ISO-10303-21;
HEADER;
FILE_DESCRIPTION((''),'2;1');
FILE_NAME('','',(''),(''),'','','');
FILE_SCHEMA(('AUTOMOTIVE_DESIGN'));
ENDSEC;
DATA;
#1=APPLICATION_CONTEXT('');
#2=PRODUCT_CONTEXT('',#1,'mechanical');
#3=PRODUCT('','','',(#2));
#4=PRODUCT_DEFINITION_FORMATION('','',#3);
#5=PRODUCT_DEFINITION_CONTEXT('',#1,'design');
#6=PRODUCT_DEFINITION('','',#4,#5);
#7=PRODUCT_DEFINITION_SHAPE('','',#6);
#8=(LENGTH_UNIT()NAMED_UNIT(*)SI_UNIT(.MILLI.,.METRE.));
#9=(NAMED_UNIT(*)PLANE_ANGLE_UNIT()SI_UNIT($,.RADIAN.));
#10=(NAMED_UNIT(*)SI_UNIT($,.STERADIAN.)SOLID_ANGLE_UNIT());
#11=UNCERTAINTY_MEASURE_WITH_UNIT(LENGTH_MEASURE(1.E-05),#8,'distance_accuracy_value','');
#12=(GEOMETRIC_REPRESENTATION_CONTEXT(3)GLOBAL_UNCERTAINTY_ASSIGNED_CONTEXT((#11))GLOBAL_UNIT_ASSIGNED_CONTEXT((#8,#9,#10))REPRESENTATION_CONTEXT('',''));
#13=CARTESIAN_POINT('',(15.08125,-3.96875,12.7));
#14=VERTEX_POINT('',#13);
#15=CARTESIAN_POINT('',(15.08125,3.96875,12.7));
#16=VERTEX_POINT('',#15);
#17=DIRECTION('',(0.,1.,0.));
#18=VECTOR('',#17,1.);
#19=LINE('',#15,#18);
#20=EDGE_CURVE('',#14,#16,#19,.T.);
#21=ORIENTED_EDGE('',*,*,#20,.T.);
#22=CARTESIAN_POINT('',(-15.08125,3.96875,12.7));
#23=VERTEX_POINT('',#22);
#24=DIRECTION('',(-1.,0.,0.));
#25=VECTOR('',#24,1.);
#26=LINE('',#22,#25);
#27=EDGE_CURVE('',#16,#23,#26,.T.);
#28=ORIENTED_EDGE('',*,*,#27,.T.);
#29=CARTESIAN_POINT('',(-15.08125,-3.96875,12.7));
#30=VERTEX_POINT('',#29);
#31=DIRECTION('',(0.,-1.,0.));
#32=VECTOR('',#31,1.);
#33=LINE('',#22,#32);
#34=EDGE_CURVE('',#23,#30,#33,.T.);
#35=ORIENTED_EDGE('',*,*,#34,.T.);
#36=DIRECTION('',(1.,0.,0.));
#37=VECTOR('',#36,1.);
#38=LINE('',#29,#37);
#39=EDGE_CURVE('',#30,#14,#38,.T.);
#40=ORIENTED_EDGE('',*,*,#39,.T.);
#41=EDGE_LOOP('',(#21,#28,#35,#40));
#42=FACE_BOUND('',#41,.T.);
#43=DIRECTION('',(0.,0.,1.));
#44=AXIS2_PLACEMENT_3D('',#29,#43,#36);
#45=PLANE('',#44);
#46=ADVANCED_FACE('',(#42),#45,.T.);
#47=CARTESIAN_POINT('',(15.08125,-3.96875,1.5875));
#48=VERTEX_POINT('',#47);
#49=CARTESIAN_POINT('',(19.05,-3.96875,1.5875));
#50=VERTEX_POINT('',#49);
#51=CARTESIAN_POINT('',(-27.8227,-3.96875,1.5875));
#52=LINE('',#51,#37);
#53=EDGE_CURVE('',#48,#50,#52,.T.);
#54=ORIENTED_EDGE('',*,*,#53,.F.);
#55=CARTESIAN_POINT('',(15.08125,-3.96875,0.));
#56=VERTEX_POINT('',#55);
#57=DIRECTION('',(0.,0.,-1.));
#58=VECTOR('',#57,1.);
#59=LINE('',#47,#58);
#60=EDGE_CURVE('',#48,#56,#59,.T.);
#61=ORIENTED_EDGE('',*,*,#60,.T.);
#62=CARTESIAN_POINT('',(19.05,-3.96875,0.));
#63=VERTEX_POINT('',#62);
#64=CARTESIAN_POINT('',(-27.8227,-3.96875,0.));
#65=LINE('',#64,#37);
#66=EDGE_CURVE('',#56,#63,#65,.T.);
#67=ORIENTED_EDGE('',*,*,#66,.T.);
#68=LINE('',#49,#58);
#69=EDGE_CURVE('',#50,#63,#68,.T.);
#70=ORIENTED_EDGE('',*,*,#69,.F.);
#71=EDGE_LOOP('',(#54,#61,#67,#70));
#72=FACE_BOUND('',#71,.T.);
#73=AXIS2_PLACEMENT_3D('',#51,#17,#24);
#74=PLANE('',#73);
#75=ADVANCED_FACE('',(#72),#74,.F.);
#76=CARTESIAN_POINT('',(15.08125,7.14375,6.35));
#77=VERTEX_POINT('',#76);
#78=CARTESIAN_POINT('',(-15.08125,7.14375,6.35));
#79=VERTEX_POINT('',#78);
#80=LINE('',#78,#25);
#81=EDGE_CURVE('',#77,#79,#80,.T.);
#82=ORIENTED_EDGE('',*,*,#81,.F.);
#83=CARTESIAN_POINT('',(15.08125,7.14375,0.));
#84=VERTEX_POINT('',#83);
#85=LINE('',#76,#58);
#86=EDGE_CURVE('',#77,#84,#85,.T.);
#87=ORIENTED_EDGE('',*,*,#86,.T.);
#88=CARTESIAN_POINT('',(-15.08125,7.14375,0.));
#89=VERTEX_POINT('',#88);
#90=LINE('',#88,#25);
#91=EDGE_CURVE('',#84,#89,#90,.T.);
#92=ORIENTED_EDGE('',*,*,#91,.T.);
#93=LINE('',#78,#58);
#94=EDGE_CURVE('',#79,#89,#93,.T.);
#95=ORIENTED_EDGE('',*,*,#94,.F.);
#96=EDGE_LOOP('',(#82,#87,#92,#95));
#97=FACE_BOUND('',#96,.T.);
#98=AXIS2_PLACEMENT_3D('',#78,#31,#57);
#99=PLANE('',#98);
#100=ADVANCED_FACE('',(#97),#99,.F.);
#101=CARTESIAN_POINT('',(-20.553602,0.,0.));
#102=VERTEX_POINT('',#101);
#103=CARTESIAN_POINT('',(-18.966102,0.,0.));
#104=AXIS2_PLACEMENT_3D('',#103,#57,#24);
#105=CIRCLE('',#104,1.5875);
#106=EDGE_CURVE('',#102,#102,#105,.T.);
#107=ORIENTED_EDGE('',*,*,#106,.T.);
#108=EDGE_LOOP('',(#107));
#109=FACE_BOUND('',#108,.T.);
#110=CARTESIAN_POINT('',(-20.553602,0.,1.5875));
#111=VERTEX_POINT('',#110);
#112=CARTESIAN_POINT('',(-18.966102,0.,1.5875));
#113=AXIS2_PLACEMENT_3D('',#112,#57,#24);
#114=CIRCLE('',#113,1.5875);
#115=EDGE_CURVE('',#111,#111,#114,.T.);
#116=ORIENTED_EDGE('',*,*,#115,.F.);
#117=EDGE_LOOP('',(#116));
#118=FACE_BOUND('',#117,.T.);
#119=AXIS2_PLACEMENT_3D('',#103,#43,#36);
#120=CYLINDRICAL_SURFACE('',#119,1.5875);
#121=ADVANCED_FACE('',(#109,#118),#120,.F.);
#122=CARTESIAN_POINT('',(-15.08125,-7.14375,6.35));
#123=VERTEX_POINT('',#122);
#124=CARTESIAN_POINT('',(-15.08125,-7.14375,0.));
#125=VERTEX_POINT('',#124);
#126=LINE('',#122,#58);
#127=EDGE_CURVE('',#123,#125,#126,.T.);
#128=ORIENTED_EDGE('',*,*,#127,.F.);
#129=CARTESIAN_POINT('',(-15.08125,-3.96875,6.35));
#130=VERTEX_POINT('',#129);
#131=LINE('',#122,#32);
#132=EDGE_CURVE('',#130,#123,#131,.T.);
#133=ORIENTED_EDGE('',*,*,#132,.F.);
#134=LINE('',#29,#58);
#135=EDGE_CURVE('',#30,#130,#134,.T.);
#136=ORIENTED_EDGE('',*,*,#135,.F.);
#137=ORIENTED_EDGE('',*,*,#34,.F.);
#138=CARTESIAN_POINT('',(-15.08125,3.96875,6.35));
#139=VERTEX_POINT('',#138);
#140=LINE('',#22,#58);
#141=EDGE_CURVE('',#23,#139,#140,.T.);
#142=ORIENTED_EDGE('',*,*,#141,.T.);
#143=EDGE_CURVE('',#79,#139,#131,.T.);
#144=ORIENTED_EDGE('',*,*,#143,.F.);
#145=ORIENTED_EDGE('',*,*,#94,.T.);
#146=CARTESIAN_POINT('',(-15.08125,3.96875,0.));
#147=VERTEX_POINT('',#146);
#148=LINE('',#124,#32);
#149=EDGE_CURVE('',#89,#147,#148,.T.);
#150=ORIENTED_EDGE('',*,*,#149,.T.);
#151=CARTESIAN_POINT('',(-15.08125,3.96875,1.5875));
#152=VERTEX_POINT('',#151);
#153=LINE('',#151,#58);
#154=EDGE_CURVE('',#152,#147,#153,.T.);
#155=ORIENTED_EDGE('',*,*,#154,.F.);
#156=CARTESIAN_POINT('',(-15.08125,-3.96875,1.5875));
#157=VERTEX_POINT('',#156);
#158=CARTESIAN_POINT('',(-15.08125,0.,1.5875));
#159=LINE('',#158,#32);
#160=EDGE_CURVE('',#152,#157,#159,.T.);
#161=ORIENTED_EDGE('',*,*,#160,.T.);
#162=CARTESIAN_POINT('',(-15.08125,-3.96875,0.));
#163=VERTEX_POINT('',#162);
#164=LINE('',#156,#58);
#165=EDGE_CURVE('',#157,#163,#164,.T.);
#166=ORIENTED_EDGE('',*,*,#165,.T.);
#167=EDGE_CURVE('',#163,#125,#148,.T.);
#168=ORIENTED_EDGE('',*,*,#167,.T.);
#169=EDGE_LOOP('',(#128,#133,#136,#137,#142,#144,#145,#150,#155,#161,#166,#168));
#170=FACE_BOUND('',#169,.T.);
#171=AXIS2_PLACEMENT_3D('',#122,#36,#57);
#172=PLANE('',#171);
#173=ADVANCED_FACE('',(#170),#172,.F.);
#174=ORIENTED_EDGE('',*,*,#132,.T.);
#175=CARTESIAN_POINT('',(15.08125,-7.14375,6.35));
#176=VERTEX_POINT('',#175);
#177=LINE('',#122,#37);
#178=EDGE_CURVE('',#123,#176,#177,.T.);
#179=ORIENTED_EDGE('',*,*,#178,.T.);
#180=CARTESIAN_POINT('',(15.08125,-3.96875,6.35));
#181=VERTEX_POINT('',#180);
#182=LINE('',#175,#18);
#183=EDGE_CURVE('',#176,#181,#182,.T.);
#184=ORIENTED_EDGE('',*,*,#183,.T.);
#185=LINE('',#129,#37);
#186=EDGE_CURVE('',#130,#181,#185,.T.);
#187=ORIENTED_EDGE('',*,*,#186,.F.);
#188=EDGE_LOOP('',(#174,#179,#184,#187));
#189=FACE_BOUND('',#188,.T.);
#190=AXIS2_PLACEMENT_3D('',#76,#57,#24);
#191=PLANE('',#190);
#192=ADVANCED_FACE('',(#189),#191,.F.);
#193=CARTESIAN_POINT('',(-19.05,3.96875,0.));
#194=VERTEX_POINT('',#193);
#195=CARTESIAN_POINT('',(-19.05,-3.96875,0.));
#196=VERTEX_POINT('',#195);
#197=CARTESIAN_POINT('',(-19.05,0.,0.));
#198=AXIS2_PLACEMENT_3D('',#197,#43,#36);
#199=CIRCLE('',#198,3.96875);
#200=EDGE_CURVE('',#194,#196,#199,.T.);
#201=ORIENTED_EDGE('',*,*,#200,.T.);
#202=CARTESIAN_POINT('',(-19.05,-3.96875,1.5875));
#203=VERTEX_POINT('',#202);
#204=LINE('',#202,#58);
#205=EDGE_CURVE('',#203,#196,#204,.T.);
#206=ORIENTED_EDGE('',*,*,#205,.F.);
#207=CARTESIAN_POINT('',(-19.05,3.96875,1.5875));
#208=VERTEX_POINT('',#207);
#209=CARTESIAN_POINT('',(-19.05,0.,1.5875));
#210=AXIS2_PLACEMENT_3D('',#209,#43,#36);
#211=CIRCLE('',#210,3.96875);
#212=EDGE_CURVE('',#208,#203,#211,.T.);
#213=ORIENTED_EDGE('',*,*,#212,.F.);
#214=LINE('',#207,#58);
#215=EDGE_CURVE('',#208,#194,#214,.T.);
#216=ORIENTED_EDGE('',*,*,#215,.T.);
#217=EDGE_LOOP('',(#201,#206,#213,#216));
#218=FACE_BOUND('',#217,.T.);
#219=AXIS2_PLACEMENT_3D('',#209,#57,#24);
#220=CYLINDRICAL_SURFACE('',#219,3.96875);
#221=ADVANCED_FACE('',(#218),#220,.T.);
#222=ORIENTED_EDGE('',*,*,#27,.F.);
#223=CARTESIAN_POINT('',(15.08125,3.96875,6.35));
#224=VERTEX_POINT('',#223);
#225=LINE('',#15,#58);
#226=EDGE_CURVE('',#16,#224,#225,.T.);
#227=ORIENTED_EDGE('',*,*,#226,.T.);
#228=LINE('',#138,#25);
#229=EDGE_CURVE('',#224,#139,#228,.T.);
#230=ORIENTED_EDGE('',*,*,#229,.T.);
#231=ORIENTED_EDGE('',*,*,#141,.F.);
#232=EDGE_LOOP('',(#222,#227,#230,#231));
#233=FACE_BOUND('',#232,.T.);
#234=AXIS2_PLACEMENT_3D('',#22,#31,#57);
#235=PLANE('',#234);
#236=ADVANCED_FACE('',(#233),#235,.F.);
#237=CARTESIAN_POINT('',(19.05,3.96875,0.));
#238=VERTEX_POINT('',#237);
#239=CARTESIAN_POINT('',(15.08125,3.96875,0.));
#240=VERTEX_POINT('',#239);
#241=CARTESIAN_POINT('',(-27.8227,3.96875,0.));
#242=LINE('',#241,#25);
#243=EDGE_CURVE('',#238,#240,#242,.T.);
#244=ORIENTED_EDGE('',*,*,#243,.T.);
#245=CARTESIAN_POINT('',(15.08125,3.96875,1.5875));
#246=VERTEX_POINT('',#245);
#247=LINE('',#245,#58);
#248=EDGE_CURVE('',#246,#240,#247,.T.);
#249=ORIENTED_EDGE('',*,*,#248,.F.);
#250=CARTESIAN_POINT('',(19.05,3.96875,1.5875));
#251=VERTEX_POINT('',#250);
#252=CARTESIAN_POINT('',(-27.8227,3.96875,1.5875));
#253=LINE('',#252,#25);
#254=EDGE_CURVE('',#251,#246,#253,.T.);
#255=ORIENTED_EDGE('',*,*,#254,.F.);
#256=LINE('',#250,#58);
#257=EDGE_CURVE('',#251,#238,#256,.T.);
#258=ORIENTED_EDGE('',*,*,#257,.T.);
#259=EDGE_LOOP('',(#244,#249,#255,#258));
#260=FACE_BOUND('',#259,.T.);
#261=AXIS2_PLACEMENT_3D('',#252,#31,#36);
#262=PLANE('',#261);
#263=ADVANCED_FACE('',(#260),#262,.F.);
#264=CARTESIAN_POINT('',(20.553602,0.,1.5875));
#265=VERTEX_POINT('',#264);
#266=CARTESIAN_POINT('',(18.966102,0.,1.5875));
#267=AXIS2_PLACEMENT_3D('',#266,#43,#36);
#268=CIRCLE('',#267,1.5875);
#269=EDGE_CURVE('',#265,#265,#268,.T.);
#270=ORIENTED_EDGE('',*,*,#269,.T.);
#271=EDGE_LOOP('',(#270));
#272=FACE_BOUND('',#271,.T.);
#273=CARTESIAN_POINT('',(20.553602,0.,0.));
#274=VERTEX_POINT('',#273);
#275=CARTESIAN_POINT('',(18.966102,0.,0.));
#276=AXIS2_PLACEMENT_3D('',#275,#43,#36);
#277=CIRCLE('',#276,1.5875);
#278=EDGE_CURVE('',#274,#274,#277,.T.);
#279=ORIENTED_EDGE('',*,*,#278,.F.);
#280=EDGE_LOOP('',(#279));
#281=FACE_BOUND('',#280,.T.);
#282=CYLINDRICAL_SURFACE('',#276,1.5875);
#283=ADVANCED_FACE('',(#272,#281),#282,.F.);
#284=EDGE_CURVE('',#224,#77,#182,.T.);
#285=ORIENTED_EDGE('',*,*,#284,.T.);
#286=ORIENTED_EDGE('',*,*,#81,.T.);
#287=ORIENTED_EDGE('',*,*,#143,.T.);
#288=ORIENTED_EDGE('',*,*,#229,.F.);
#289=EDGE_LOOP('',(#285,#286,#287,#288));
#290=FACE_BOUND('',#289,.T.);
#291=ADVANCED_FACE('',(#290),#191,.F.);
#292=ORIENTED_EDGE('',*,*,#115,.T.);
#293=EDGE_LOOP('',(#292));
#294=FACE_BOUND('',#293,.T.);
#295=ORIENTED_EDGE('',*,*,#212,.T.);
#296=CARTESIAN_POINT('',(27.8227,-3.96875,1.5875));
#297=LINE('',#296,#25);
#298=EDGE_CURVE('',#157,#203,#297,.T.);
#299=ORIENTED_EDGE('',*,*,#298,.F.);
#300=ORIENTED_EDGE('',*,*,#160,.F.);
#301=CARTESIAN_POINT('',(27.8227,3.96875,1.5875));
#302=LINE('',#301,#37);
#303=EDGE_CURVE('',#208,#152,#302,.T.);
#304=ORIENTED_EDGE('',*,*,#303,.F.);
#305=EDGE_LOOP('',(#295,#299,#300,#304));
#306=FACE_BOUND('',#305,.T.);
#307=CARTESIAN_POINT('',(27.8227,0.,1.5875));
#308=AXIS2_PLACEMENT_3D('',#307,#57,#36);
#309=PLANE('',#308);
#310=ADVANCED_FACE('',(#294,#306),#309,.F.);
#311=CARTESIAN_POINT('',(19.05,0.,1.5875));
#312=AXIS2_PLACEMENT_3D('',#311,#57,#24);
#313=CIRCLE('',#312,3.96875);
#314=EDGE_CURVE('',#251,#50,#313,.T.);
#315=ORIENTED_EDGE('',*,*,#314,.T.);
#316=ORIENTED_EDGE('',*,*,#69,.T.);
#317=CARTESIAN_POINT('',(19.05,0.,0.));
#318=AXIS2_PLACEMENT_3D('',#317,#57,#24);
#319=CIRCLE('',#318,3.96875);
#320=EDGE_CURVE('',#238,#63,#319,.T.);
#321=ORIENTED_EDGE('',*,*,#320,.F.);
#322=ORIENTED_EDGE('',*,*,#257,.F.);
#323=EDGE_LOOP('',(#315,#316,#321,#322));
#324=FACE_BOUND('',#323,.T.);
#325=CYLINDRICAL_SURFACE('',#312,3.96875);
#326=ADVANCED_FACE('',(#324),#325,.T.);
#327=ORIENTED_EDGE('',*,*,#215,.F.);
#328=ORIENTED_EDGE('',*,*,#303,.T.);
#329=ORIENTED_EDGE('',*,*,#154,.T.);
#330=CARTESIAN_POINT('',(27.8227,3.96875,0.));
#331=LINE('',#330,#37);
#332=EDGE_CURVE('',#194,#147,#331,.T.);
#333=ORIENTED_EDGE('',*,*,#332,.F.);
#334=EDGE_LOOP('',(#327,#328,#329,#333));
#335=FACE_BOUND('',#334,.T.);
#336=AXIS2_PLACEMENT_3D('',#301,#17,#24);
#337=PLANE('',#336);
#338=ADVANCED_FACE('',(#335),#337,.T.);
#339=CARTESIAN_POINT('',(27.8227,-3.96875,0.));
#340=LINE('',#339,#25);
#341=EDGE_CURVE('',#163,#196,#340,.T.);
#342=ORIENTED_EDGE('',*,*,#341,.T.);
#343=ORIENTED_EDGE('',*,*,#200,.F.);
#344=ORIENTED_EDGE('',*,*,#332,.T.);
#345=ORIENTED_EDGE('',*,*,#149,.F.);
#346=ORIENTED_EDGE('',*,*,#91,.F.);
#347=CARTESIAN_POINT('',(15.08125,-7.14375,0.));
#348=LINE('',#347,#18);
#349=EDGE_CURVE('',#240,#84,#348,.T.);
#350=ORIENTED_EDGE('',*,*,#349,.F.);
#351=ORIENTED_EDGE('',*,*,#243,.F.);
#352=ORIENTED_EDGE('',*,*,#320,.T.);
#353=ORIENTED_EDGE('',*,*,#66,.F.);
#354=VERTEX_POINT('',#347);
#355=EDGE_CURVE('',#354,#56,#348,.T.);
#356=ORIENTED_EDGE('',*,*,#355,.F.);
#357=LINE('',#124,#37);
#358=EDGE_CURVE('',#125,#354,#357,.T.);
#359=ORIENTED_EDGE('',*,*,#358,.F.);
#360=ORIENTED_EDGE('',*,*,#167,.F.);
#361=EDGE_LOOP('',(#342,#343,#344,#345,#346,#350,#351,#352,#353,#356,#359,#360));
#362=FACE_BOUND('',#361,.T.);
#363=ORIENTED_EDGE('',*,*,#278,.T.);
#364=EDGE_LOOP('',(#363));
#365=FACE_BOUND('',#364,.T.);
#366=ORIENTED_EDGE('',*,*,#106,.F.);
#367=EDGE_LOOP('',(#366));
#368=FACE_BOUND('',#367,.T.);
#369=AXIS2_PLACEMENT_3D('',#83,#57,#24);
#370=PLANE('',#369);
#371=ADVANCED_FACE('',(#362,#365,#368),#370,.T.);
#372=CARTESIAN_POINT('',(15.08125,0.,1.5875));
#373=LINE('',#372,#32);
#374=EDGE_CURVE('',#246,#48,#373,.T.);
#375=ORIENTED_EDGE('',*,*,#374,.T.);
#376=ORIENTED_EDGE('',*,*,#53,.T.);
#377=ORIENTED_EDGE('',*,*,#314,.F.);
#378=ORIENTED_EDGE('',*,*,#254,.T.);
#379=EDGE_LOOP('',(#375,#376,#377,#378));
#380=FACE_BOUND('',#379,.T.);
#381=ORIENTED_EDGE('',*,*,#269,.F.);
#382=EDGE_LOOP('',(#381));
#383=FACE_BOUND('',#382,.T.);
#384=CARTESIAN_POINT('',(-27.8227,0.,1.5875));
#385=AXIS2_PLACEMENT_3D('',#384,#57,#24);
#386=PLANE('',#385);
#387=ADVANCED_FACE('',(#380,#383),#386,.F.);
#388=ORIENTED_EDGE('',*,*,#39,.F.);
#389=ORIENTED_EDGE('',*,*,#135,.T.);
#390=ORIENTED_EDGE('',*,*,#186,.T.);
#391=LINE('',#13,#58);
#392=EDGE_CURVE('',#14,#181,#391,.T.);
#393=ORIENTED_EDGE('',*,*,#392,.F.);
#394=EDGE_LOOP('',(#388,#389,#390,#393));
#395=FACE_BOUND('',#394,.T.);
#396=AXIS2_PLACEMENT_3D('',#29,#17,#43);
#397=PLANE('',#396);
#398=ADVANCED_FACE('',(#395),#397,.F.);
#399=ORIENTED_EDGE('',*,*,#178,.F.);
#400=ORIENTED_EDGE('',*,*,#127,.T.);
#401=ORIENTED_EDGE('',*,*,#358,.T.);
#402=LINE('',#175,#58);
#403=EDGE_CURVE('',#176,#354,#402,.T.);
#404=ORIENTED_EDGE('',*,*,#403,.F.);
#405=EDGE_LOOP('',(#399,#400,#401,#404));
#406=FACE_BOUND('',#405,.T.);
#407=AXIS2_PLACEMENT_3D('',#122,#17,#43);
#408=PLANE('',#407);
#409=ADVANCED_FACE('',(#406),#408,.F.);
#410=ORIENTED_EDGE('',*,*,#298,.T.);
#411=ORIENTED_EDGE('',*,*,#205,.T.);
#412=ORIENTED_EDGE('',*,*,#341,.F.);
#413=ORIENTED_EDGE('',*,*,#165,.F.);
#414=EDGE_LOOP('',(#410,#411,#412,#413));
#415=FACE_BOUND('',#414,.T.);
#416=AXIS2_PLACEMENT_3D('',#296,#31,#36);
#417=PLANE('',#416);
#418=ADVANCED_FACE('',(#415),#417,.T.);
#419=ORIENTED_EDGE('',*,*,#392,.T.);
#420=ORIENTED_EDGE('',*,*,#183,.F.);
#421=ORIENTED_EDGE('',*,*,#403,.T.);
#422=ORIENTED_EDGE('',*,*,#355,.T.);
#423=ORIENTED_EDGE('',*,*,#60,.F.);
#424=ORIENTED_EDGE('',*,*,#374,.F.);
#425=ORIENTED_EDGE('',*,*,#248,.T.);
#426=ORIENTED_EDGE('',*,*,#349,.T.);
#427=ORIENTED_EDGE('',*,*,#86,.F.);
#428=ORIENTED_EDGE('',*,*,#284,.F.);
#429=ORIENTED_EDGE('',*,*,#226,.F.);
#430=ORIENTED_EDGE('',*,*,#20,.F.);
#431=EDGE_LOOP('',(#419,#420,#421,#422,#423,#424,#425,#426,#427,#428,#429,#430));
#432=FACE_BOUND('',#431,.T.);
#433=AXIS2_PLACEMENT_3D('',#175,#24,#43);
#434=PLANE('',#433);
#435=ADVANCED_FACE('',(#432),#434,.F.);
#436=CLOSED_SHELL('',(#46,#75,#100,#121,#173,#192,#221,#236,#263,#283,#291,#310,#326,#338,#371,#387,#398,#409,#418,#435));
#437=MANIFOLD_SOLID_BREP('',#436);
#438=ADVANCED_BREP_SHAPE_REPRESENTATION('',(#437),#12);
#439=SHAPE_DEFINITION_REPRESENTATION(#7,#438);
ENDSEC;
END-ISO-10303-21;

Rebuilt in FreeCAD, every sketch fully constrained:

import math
import FreeCAD as App
import Part
import Sketcher

V = App.Vector
Q = App.Units.Quantity

doc = App.newDocument("Part")
params = doc.addObject("Spreadsheet::Sheet", "Params")
for row, (alias, value) in enumerate([
    ("sketch1_width", "1.1875 in"),
    ("sketch1_height", "0.5625 in"),
    ("pad1_length", "0.25 in"),
    ("sketch2_width", "1.1875 in"),
    ("sketch2_height", "0.3125 in"),
    ("pad2_length", "0.25 in"),
    ("sketch3_radius", "0.15625 in"),
    ("sketch3_width", "0.15625 in"),
    ("pad3_length", "0.0625 in"),
    ("sketch4_diameter", "0.125 in"),
    ("pocket1_length", "0.0625 in"),
], start=1):
    params.set(f"A{row}", alias)
    params.set(f"B{row}", "=" + value)
    params.setAlias(f"B{row}", alias)

body = doc.addObject("PartDesign::Body", "Body")

# Sketch on XY plane
sketch1 = body.newObject("Sketcher::SketchObject", "Sketch")
sketch1.AttachmentSupport = (doc.getObject("XY_Plane"), [""])
sketch1.MapMode = "FlatFace"
sketch1.addGeometry([
    Part.LineSegment(V(-15, 7, 0), V(-15, -7, 0)),
    Part.LineSegment(V(-15, -7, 0), V(15, -7, 0)),
    Part.LineSegment(V(15, -7, 0), V(15, 7, 0)),
    Part.LineSegment(V(15, 7, 0), V(-15, 7, 0)),
], False)
sketch1.addConstraint([
    Sketcher.Constraint("Coincident", 0, 2, 1, 1),
    Sketcher.Constraint("Coincident", 1, 2, 2, 1),
    Sketcher.Constraint("Coincident", 2, 2, 3, 1),
    Sketcher.Constraint("Coincident", 3, 2, 0, 1),
    Sketcher.Constraint("Vertical", 0),
    Sketcher.Constraint("Horizontal", 1),
    Sketcher.Constraint("Vertical", 2),
    Sketcher.Constraint("Horizontal", 3),
    Sketcher.Constraint("Symmetric", 0, 2, 2, 2, -1, 1),
    Sketcher.Constraint("DistanceX", 1, 1, 1, 2, Q("1.1875 in")),
    Sketcher.Constraint("DistanceY", 0, 2, 0, 1, Q("0.5625 in")),
])
sketch1.setExpression("Constraints[9]", "Params.sketch1_width")
sketch1.setExpression("Constraints[10]", "Params.sketch1_height")
pad1 = body.newObject("PartDesign::Pad", "Pad")
pad1.Profile = sketch1
pad1.setExpression("Length", "Params.pad1_length")

# Sketch on XY plane
sketch2 = body.newObject("Sketcher::SketchObject", "Sketch001")
sketch2.AttachmentSupport = (doc.getObject("XY_Plane"), [""])
sketch2.MapMode = "FlatFace"
sketch2.AttachmentOffset = App.Placement(V(0, 0, 0.25 * 25.4), App.Rotation())
sketch2.addGeometry([
    Part.LineSegment(V(-15, 4, 0), V(-15, -4, 0)),
    Part.LineSegment(V(-15, -4, 0), V(15, -4, 0)),
    Part.LineSegment(V(15, -4, 0), V(15, 4, 0)),
    Part.LineSegment(V(15, 4, 0), V(-15, 4, 0)),
], False)
sketch2.addConstraint([
    Sketcher.Constraint("Coincident", 0, 2, 1, 1),
    Sketcher.Constraint("Coincident", 1, 2, 2, 1),
    Sketcher.Constraint("Coincident", 2, 2, 3, 1),
    Sketcher.Constraint("Coincident", 3, 2, 0, 1),
    Sketcher.Constraint("Vertical", 0),
    Sketcher.Constraint("Horizontal", 1),
    Sketcher.Constraint("Vertical", 2),
    Sketcher.Constraint("Horizontal", 3),
    Sketcher.Constraint("Symmetric", 0, 2, 2, 2, -1, 1),
    Sketcher.Constraint("DistanceX", 1, 1, 1, 2, Q("1.1875 in")),
    Sketcher.Constraint("DistanceY", 0, 2, 0, 1, Q("0.3125 in")),
])
sketch2.setExpression("Constraints[9]", "Params.sketch2_width")
sketch2.setExpression("Constraints[10]", "Params.sketch2_height")
pad2 = body.newObject("PartDesign::Pad", "Pad001")
pad2.Profile = sketch2
pad2.setExpression("Length", "Params.pad2_length")

# Sketch on XY plane
sketch3 = body.newObject("Sketcher::SketchObject", "Sketch002")
sketch3.AttachmentSupport = (doc.getObject("XY_Plane"), [""])
sketch3.MapMode = "FlatFace"
sketch3.addGeometry([
    Part.ArcOfCircle(Part.Circle(V(19.1, 0, 0), V(0, 0, 1), 4), math.radians(-90), math.radians(90)),
    Part.LineSegment(V(19.1, -4, 0), V(15.1, -4, 0)),
    Part.LineSegment(V(15.1, -4, 0), V(15.1, 4, 0)),
    Part.LineSegment(V(15.1, 4, 0), V(19.1, 4, 0)),
], False)
sketch3.addConstraint([
    Sketcher.Constraint("Tangent", 0, 1, 1, 1),
    Sketcher.Constraint("Coincident", 1, 2, 2, 1),
    Sketcher.Constraint("Coincident", 2, 2, 3, 1),
    Sketcher.Constraint("Tangent", 3, 2, 0, 2),
    Sketcher.Constraint("Horizontal", 1),
    Sketcher.Constraint("Vertical", 2),
    Sketcher.Constraint("Horizontal", 3),
    Sketcher.Constraint("PointOnObject", 0, 3, -1),
    Sketcher.Constraint("Radius", 0, Q("0.15625 in")),
    Sketcher.Constraint("DistanceX", 1, 2, 1, 1, Q("0.15625 in")),
    Sketcher.Constraint("DistanceX", -1, 1, 0, 3, Q("0.75 in")),
])
sketch3.setExpression("Constraints[8]", "Params.sketch3_radius")
sketch3.setExpression("Constraints[9]", "Params.sketch3_width")
pad3 = body.newObject("PartDesign::Pad", "Pad002")
pad3.Profile = sketch3
pad3.setExpression("Length", "Params.pad3_length")

# Sketch on XY plane
sketch4 = body.newObject("Sketcher::SketchObject", "Sketch003")
sketch4.AttachmentSupport = (doc.getObject("XY_Plane"), [""])
sketch4.MapMode = "FlatFace"
sketch4.AttachmentOffset = App.Placement(V(0, 0, 0.0625 * 25.4), App.Rotation())
sketch4.addGeometry(Part.Circle(V(19, 0, 0), V(0, 0, 1), 1.6), False)
sketch4.addConstraint([
    Sketcher.Constraint("PointOnObject", 0, 3, -1),
    Sketcher.Constraint("Diameter", 0, Q("0.125 in")),
    Sketcher.Constraint("DistanceX", -1, 1, 0, 3, Q("18.966102 mm")),
])
sketch4.setExpression("Constraints[1]", "Params.sketch4_diameter")
pocket1 = body.newObject("PartDesign::Pocket", "Pocket")
pocket1.Profile = sketch4
pocket1.setExpression("Length", "Params.pocket1_length")
doc.recompute()

mirrored = body.newObject("PartDesign::Mirrored", "Mirrored")
mirrored.Originals = [pad3, pocket1]
mirrored.MirrorPlane = (doc.getObject("YZ_Plane"), [""])
body.Tip = mirrored

doc.recompute()
